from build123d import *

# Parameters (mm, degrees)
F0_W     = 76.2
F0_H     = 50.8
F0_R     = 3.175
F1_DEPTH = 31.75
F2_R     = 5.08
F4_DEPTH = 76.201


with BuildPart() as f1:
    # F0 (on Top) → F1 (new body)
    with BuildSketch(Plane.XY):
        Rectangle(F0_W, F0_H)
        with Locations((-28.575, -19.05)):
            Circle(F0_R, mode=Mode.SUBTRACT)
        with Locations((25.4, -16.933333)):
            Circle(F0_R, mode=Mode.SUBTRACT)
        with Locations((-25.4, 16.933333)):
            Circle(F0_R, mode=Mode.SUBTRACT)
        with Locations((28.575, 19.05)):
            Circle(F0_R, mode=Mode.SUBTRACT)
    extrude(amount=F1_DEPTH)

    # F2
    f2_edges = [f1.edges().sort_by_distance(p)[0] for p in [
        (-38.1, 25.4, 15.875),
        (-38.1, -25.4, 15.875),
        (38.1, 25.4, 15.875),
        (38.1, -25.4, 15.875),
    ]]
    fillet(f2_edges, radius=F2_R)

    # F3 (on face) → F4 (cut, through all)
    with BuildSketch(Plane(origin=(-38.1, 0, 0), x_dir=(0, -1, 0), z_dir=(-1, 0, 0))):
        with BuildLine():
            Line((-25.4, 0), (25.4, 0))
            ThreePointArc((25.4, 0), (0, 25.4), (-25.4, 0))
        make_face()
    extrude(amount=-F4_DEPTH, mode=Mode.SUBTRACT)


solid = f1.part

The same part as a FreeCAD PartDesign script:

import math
import FreeCAD as App
import Part
import Sketcher
Q = App.Units.Quantity


def edges_at(feature, points):
    """Names of the edges that pass closest to the given points."""
    edges = feature.Shape.Edges
    near = lambda p: min(range(len(edges)), key=lambda i: edges[i].distToShape(Part.Vertex(*p))[0])
    return sorted({f"Edge{near(p) + 1}" for p in points})

doc = App.newDocument("Part")
body = doc.addObject("PartDesign::Body", "Body")

sketch1 = body.newObject("Sketcher::SketchObject", "Sketch")
sketch1.AttachmentSupport = (doc.getObject("XY_Plane"), [""])
sketch1.MapMode = "FlatFace"
sketch1.addGeometry([
    Part.LineSegment(App.Vector(-38.1, 25.4, 0), App.Vector(-38.1, -25.4, 0)),
    Part.LineSegment(App.Vector(-38.1, -25.4, 0), App.Vector(38.1, -25.4, 0)),
    Part.LineSegment(App.Vector(38.1, -25.4, 0), App.Vector(38.1, 25.4, 0)),
    Part.LineSegment(App.Vector(38.1, 25.4, 0), App.Vector(-38.1, 25.4, 0)),
    Part.Circle(App.Vector(-28.6, -19.1, 0), App.Vector(0, 0, 1), 3.2),
    Part.Circle(App.Vector(25.4, -16.9, 0), App.Vector(0, 0, 1), 3.2),
    Part.Circle(App.Vector(-25.4, 16.9, 0), App.Vector(0, 0, 1), 3.2),
    Part.Circle(App.Vector(28.6, 19.1, 0), App.Vector(0, 0, 1), 3.2),
], False)
sketch1.addConstraint([
    Sketcher.Constraint("Coincident", 0, 2, 1, 1),
    Sketcher.Constraint("Coincident", 1, 2, 2, 1),
    Sketcher.Constraint("Coincident", 2, 2, 3, 1),
    Sketcher.Constraint("Coincident", 3, 2, 0, 1),
    Sketcher.Constraint("Vertical", 0),
    Sketcher.Constraint("Horizontal", 1),
    Sketcher.Constraint("Vertical", 2),
    Sketcher.Constraint("Horizontal", 3),
    Sketcher.Constraint("Equal", 4, 5),
    Sketcher.Constraint("Equal", 5, 6),
    Sketcher.Constraint("Equal", 6, 7),
    Sketcher.Constraint("Symmetric", 5, 3, 6, 3, -1, 1),
    Sketcher.Constraint("Symmetric", 4, 3, 7, 3, -1, 1),
    Sketcher.Constraint("Symmetric", 0, 2, 2, 2, -1, 1),
    Sketcher.Constraint("Diameter", 4, Q("0.25 in")),
    Sketcher.Constraint("DistanceX", 1, 1, 1, 2, Q("3 in")),
    Sketcher.Constraint("DistanceY", 0, 2, 0, 1, Q("2 in")),
    Sketcher.Constraint("DistanceX", -1, 1, 5, 3, Q("1 in")),
    Sketcher.Constraint("DistanceY", 4, 3, 7, 3, Q("1.5 in")),
    Sketcher.Constraint("DistanceX", 4, 3, 7, 3, Q("2.25 in")),
    Sketcher.Constraint("DistanceY", 5, 3, -1, 1, 16.933333),
])
pad1 = body.newObject("PartDesign::Pad", "Pad")
pad1.Profile = sketch1
pad1.Length = Q("1.25 in")
doc.recompute()

fillet = body.newObject("PartDesign::Fillet", "Fillet")
fillet.Base = (pad1, edges_at(pad1, [
    (-38.1, 25.4, 15.875),
    (-38.1, -25.4, 15.875),
    (38.1, 25.4, 15.875),
    (38.1, -25.4, 15.875),
]))
fillet.Radius = Q("0.2 in")

sketch2 = body.newObject("Sketcher::SketchObject", "Sketch001")
sketch2.AttachmentSupport = (doc.getObject("YZ_Plane"), [""])
sketch2.MapMode = "FlatFace"
sketch2.AttachmentOffset = App.Placement(App.Vector(0, 0, -1.5 * 25.4), App.Rotation())
sketch2.addGeometry([
    Part.LineSegment(App.Vector(25, 0, 0), App.Vector(-25, 0, 0)),
    Part.ArcOfCircle(Part.Circle(App.Vector(0, 0, 0), App.Vector(0, 0, 1), 25), math.radians(0), math.radians(180)),
], False)
sketch2.addConstraint([
    Sketcher.Constraint("Coincident", 0, 1, 1, 1),
    Sketcher.Constraint("Coincident", 1, 2, 0, 2),
    Sketcher.Constraint("Horizontal", 0),
    Sketcher.Constraint("Coincident", 1, 3, -1, 1),
    Sketcher.Constraint("PointOnObject", 0, 1, -1),
    Sketcher.Constraint("Radius", 1, Q("1 in")),
])
pocket1 = body.newObject("PartDesign::Pocket", "Pocket")
pocket1.Profile = sketch2
pocket1.Type = "ThroughAll"
pocket1.Reversed = True

doc.recompute()
